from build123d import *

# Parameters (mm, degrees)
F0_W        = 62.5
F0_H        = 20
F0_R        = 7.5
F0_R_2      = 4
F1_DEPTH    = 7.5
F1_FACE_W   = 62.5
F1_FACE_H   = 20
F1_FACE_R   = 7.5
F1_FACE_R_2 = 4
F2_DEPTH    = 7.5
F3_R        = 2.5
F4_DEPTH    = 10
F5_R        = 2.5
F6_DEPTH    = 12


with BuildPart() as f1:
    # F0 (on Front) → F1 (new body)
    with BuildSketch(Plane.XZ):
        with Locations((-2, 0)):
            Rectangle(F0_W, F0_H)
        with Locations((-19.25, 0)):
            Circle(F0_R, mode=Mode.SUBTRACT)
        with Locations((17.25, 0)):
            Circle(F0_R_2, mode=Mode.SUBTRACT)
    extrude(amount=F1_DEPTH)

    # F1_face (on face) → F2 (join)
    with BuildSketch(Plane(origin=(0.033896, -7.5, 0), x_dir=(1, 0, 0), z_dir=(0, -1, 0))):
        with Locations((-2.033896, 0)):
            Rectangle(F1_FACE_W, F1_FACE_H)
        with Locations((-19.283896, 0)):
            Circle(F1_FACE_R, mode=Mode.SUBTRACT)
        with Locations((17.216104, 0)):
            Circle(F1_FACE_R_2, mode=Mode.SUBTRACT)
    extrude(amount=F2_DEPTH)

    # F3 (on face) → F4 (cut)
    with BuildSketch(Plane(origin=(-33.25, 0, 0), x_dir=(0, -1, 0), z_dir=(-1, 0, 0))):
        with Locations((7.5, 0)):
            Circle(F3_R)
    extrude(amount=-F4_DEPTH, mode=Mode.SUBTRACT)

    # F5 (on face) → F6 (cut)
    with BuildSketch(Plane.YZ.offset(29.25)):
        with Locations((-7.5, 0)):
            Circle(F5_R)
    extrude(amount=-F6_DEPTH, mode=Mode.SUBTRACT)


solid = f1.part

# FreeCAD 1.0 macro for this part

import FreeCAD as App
import Part
import Sketcher
from FreeCAD import Vector
Q = App.Units.Quantity


def add_polygon(sketch, points):
    """Adds a closed chain of lines whose ends are joined by coincident constraints."""
    first, n = sketch.GeometryCount, len(points)
    for a, b in zip(points, points[1:] + points[:1]):
        sketch.addGeometry(Part.LineSegment(App.Vector(*a, 0), App.Vector(*b, 0)), False)
    for i in range(n):
        sketch.addConstraint(Sketcher.Constraint("Coincident", first + i, 2, first + (i + 1) % n, 1))

doc = App.newDocument("Part")
body = doc.addObject("PartDesign::Body", "Body")

sketch1 = body.newObject("Sketcher::SketchObject", "Sketch")
sketch1.AttachmentSupport = (doc.getObject("XZ_Plane"), [""])
sketch1.MapMode = "FlatFace"
add_polygon(sketch1, [(-33.2, 10), (-33.2, -10), (29.2, -10), (29.2, 10)])
sketch1.addGeometry(Part.Circle(Vector(-19.2, 0, 0), Vector(0, 0, 1), 7.5), False)
sketch1.addGeometry(Part.Circle(Vector(17.2, 0, 0), Vector(0, 0, 1), 4), False)
sketch1.addConstraint([
    Sketcher.Constraint("Vertical", 0),
    Sketcher.Constraint("Horizontal", 1),
    Sketcher.Constraint("Vertical", 2),
    Sketcher.Constraint("Horizontal", 3),
    Sketcher.Constraint("PointOnObject", 4, 3, -1),
    Sketcher.Constraint("PointOnObject", 5, 3, -1),
    Sketcher.Constraint("Diameter", 4, Q("15 mm")),
    Sketcher.Constraint("Diameter", 5, Q("8 mm")),
    Sketcher.Constraint("DistanceY", 0, 2, 0, 1, Q("20 mm")),
    Sketcher.Constraint("DistanceX", 1, 1, 1, 2, Q("62.5 mm")),
    Sketcher.Constraint("DistanceY", 0, 2, -1, 1, Q("10 mm")),
    Sketcher.Constraint("DistanceX", 0, 2, 4, 3, Q("14 mm")),
    Sketcher.Constraint("DistanceX", 5, 3, 1, 2, Q("12 mm")),
    Sketcher.Constraint("DistanceX", 4, 3, -1, 1, Q("19.25 mm")),
])
pad1 = body.newObject("PartDesign::Pad", "Pad")
pad1.Profile = sketch1
pad1.Length = 7.5

sketch2 = body.newObject("Sketcher::SketchObject", "Sketch001")
sketch2.AttachmentSupport = (doc.getObject("XZ_Plane"), [""])
sketch2.MapMode = "FlatFace"
sketch2.AttachmentOffset = App.Placement(Vector(0, 0, 7.5), App.Rotation())
add_polygon(sketch2, [(-33.2, 10), (-33.2, -10), (29.2, -10), (29.2, 10)])
sketch2.addGeometry(Part.Circle(Vector(-19.2, 0, 0), Vector(0, 0, 1), 7.5), False)
sketch2.addGeometry(Part.Circle(Vector(17.2, 0, 0), Vector(0, 0, 1), 4), False)
sketch2.addConstraint([
    Sketcher.Constraint("Vertical", 0),
    Sketcher.Constraint("Horizontal", 1),
    Sketcher.Constraint("Vertical", 2),
    Sketcher.Constraint("Horizontal", 3),
    Sketcher.Constraint("PointOnObject", 4, 3, -1),
    Sketcher.Constraint("PointOnObject", 5, 3, -1),
    Sketcher.Constraint("Diameter", 4, Q("15 mm")),
    Sketcher.Constraint("Diameter", 5, Q("8 mm")),
    Sketcher.Constraint("DistanceY", 0, 2, 0, 1, Q("20 mm")),
    Sketcher.Constraint("DistanceX", 1, 1, 1, 2, Q("62.5 mm")),
    Sketcher.Constraint("DistanceY", 0, 2, -1, 1, Q("10 mm")),
    Sketcher.Constraint("DistanceX", 0, 2, 4, 3, Q("14 mm")),
    Sketcher.Constraint("DistanceX", 5, 3, 1, 2, Q("12 mm")),
    Sketcher.Constraint("DistanceX", 4, 3, -1, 1, Q("19.25 mm")),
])
pad2 = body.newObject("PartDesign::Pad", "Pad001")
pad2.Profile = sketch2
pad2.Length = 7.5

sketch3 = body.newObject("Sketcher::SketchObject", "Sketch002")
sketch3.AttachmentSupport = (doc.getObject("YZ_Plane"), [""])
sketch3.MapMode = "FlatFace"
sketch3.AttachmentOffset = App.Placement(Vector(0, 0, -33.25), App.Rotation())
sketch3.addGeometry(Part.Circle(Vector(-7.5, 0, 0), Vector(0, 0, 1), 2.5), False)
sketch3.addConstraint([
    Sketcher.Constraint("PointOnObject", 0, 3, -1),
    Sketcher.Constraint("Diameter", 0, Q("5 mm")),
    Sketcher.Constraint("DistanceX", 0, 3, -1, 1, Q("7.5 mm")),
])
pocket1 = body.newObject("PartDesign::Pocket", "Pocket")
pocket1.Profile = sketch3
pocket1.Length = 10
pocket1.Reversed = True

sketch4 = body.newObject("Sketcher::SketchObject", "Sketch003")
sketch4.AttachmentSupport = (doc.getObject("YZ_Plane"), [""])
sketch4.MapMode = "FlatFace"
sketch4.AttachmentOffset = App.Placement(Vector(0, 0, 29.25), App.Rotation())
sketch4.addGeometry(Part.Circle(Vector(-7.5, 0, 0), Vector(0, 0, 1), 2.5), False)
sketch4.addConstraint([
    Sketcher.Constraint("PointOnObject", 0, 3, -1),
    Sketcher.Constraint("Diameter", 0, Q("5 mm")),
    Sketcher.Constraint("DistanceX", 0, 3, -1, 1, Q("7.5 mm")),
])
pocket2 = body.newObject("PartDesign::Pocket", "Pocket001")
pocket2.Profile = sketch4
pocket2.Length = 12

doc.recompute()
